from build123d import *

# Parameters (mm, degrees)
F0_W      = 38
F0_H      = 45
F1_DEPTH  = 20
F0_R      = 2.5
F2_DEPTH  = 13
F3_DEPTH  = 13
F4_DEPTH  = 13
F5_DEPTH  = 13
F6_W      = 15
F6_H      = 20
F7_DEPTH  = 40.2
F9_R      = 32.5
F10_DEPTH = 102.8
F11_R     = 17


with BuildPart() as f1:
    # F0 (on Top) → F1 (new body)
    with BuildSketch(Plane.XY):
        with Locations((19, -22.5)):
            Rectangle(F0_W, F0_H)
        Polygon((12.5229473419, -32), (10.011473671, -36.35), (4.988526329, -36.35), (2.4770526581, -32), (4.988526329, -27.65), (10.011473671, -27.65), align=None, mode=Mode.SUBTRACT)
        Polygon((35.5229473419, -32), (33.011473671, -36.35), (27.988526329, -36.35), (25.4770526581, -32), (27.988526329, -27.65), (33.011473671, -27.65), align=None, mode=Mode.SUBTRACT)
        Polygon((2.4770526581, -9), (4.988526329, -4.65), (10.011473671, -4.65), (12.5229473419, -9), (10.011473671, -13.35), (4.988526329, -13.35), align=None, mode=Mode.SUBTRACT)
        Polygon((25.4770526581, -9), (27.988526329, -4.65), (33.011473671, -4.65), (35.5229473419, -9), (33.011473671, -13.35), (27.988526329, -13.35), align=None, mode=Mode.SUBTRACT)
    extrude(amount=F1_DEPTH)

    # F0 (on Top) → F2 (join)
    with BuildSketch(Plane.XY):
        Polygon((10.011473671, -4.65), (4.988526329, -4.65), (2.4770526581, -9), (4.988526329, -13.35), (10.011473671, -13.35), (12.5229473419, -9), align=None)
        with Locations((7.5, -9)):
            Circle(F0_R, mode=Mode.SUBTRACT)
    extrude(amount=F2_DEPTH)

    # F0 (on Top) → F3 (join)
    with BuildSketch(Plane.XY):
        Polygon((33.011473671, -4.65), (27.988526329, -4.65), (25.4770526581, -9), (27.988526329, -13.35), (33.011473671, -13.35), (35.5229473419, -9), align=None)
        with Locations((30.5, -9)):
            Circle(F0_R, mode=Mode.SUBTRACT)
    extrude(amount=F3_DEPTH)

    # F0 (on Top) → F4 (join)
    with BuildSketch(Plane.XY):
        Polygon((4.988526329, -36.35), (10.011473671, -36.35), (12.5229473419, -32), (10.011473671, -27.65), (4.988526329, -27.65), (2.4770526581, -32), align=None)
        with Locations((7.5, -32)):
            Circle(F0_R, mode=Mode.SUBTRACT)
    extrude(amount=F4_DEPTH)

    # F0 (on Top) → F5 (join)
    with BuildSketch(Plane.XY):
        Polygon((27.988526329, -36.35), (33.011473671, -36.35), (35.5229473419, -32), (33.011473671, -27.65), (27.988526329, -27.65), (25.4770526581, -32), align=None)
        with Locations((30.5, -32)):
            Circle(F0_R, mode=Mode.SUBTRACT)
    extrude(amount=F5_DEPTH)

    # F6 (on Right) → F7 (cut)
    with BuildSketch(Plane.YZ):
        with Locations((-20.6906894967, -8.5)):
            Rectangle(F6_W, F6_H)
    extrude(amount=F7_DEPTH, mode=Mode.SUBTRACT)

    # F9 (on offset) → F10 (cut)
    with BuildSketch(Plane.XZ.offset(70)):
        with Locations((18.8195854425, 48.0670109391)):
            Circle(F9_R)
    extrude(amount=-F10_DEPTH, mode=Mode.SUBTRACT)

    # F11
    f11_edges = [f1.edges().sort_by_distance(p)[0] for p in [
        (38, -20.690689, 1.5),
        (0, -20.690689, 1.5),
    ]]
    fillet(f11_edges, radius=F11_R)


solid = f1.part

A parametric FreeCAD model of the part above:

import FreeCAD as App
import Part
import Sketcher
Q = App.Units.Quantity


def edges_at(feature, points):
    """Names of the edges that pass closest to the given points."""
    edges = feature.Shape.Edges
    near = lambda p: min(range(len(edges)), key=lambda i: edges[i].distToShape(Part.Vertex(*p))[0])
    return sorted({f"Edge{near(p) + 1}" for p in points})


def add_polygon(sketch, points):
    """Adds a closed chain of lines whose ends are joined by coincident constraints."""
    first, n = sketch.GeometryCount, len(points)
    for a, b in zip(points, points[1:] + points[:1]):
        sketch.addGeometry(Part.LineSegment(App.Vector(*a, 0), App.Vector(*b, 0)), False)
    for i in range(n):
        sketch.addConstraint(Sketcher.Constraint("Coincident", first + i, 2, first + (i + 1) % n, 1))

doc = App.newDocument("Part")
body = doc.addObject("PartDesign::Body", "Body")

# Sketch on XY plane
sketch1 = body.newObject("Sketcher::SketchObject", "Sketch")
sketch1.AttachmentSupport = (doc.getObject("XY_Plane"), [""])
sketch1.MapMode = "FlatFace"
add_polygon(sketch1, [(0, 0), (0, -45), (38, -45), (38, 0)])  # lines 0-3
add_polygon(sketch1, [(10, -28), (13, -32), (10, -36), (5, -36), (2, -32), (5, -28)])  # lines 4-9
add_polygon(sketch1, [(33, -28), (36, -32), (33, -36), (28, -36), (25, -32), (28, -28)])  # lines 10-15
add_polygon(sketch1, [(5, -13), (2, -9), (5, -5), (10, -5), (13, -9), (10, -13)])  # lines 16-21
add_polygon(sketch1, [(28, -13), (25, -9), (28, -5), (33, -5), (36, -9), (33, -13)])  # lines 22-27
sketch1.addConstraint(Sketcher.Constraint("Vertical", 0))
sketch1.addConstraint(Sketcher.Constraint("Horizontal", 1))
sketch1.addConstraint(Sketcher.Constraint("Vertical", 2))
sketch1.addConstraint(Sketcher.Constraint("Horizontal", 3))
sketch1.addConstraint(Sketcher.Constraint("Horizontal", 6))
sketch1.addConstraint(Sketcher.Constraint("Horizontal", 9))
sketch1.addConstraint(Sketcher.Constraint("Horizontal", 12))
sketch1.addConstraint(Sketcher.Constraint("Horizontal", 15))
sketch1.addConstraint(Sketcher.Constraint("Horizontal", 18))
sketch1.addConstraint(Sketcher.Constraint("Horizontal", 21))
sketch1.addConstraint(Sketcher.Constraint("Horizontal", 24))
sketch1.addConstraint(Sketcher.Constraint("Horizontal", 27))
sketch1.addConstraint(Sketcher.Constraint("Coincident", 3, 2, -1, 1))
sketch1.addConstraint(Sketcher.Constraint("Parallel", 4, 7))
sketch1.addConstraint(Sketcher.Constraint("Parallel", 5, 8))
sketch1.addConstraint(Sketcher.Constraint("Parallel", 7, 10))
sketch1.addConstraint(Sketcher.Constraint("Parallel", 8, 11))
sketch1.addConstraint(Sketcher.Constraint("Parallel", 10, 13))
sketch1.addConstraint(Sketcher.Constraint("Parallel", 11, 14))
sketch1.addConstraint(Sketcher.Constraint("Parallel", 13, 16))
sketch1.addConstraint(Sketcher.Constraint("Parallel", 14, 17))
sketch1.addConstraint(Sketcher.Constraint("Parallel", 16, 19))
sketch1.addConstraint(Sketcher.Constraint("Parallel", 17, 20))
sketch1.addConstraint(Sketcher.Constraint("Parallel", 19, 22))
sketch1.addConstraint(Sketcher.Constraint("Parallel", 20, 23))
sketch1.addConstraint(Sketcher.Constraint("Parallel", 22, 25))
sketch1.addConstraint(Sketcher.Constraint("Parallel", 23, 26))
sketch1.addConstraint(Sketcher.Constraint("Horizontal", 4, 2, 7, 2))
sketch1.addConstraint(Sketcher.Constraint("Horizontal", 7, 2, 10, 2))
sketch1.addConstraint(Sketcher.Constraint("Horizontal", 6, 2, 11, 2))
sketch1.addConstraint(Sketcher.Constraint("Horizontal", 10, 2, 13, 2))
sketch1.addConstraint(Sketcher.Constraint("Horizontal", 9, 2, 14, 2))
sketch1.addConstraint(Sketcher.Constraint("Horizontal", 16, 2, 19, 2))
sketch1.addConstraint(Sketcher.Constraint("Horizontal", 19, 2, 22, 2))
sketch1.addConstraint(Sketcher.Constraint("Horizontal", 18, 2, 23, 2))
sketch1.addConstraint(Sketcher.Constraint("Horizontal", 22, 2, 25, 2))
sketch1.addConstraint(Sketcher.Constraint("Horizontal", 21, 2, 26, 2))
sketch1.addConstraint(Sketcher.Constraint("Vertical", 6, 2, 8, 2))
sketch1.addConstraint(Sketcher.Constraint("Vertical", 5, 2, 9, 2))
sketch1.addConstraint(Sketcher.Constraint("Vertical", 7, 2, 16, 2))
sketch1.addConstraint(Sketcher.Constraint("Vertical", 8, 2, 17, 2))
sketch1.addConstraint(Sketcher.Constraint("Vertical", 9, 2, 18, 2))
sketch1.addConstraint(Sketcher.Constraint("Vertical", 18, 2, 20, 2))
sketch1.addConstraint(Sketcher.Constraint("Vertical", 13, 2, 22, 2))
sketch1.addConstraint(Sketcher.Constraint("Vertical", 15, 2, 24, 2))
sketch1.addConstraint(Sketcher.Constraint("Equal", 9, 12))
sketch1.addConstraint(Sketcher.Constraint("DistanceX", 1, 1, 1, 2, 38.0))
sketch1.addConstraint(Sketcher.Constraint("DistanceY", 0, 2, 0, 1, 45.0))
sketch1.addConstraint(Sketcher.Constraint("Angle", 4, Q("-60 deg")))
sketch1.addConstraint(Sketcher.Constraint("DistanceY", 4, 2, -1, 1, 32.0))
sketch1.addConstraint(Sketcher.Constraint("DistanceY", 16, 2, -1, 1, 9.0))
sketch1.addConstraint(Sketcher.Constraint("DistanceX", 4, 2, 10, 2, 23.0))
sketch1.addConstraint(Sketcher.Constraint("DistanceY", 6, 2, 8, 2, 8.7))
sketch1.addConstraint(Sketcher.Constraint("DistanceX", 6, 2, 6, 1, 5.022947))
sketch1.addConstraint(Sketcher.Constraint("DistanceX", -1, 1, 4, 2, 12.522947))
pad1 = body.newObject("PartDesign::Pad", "Pad")
pad1.Profile = sketch1
pad1.Length = 20

# Sketch on XY plane
sketch2 = body.newObject("Sketcher::SketchObject", "Sketch001")
sketch2.AttachmentSupport = (doc.getObject("XY_Plane"), [""])
sketch2.MapMode = "FlatFace"
add_polygon(sketch2, [(10, -4.7), (5, -4.7), (2.5, -9), (5, -13.3), (10, -13.3), (12.5, -9)])  # lines 0-5
sketch2.addGeometry(Part.Circle(App.Vector(7.5, -9, 0), App.Vector(0, 0, 1), 2.5), False)  # 6
sketch2.addConstraint(Sketcher.Constraint("Horizontal", 0))
sketch2.addConstraint(Sketcher.Constraint("Horizontal", 3))
sketch2.addConstraint(Sketcher.Constraint("Parallel", 1, 4))
sketch2.addConstraint(Sketcher.Constraint("Parallel", 2, 5))
sketch2.addConstraint(Sketcher.Constraint("Horizontal", 6, 3, 1, 2))
sketch2.addConstraint(Sketcher.Constraint("Horizontal", 1, 2, 4, 2))
sketch2.addConstraint(Sketcher.Constraint("Vertical", 0, 2, 2, 2))
sketch2.addConstraint(Sketcher.Constraint("Vertical", 3, 2, 5, 2))
sketch2.addConstraint(Sketcher.Constraint("Diameter", 6, 5.0))
sketch2.addConstraint(Sketcher.Constraint("Angle", 1, Q("-120 deg")))
sketch2.addConstraint(Sketcher.Constraint("DistanceY", 6, 3, -1, 1, 9.0))
sketch2.addConstraint(Sketcher.Constraint("DistanceX", -1, 1, 6, 3, 7.5))
sketch2.addConstraint(Sketcher.Constraint("DistanceY", 2, 2, 0, 2, 8.7))
sketch2.addConstraint(Sketcher.Constraint("DistanceX", 0, 2, 0, 1, 5.022947))
sketch2.addConstraint(Sketcher.Constraint("DistanceX", -1, 1, 0, 2, 4.988526))
pad2 = body.newObject("PartDesign::Pad", "Pad001")
pad2.Profile = sketch2
pad2.Length = 13

# Sketch on XY plane
sketch3 = body.newObject("Sketcher::SketchObject", "Sketch002")
sketch3.AttachmentSupport = (doc.getObject("XY_Plane"), [""])
sketch3.MapMode = "FlatFace"
add_polygon(sketch3, [(33, -4.7), (28, -4.7), (25.5, -9), (28, -13.3), (33, -13.3), (35.5, -9)])  # lines 0-5
sketch3.addGeometry(Part.Circle(App.Vector(30.5, -9, 0), App.Vector(0, 0, 1), 2.5), False)  # 6
sketch3.addConstraint(Sketcher.Constraint("Horizontal", 0))
sketch3.addConstraint(Sketcher.Constraint("Horizontal", 3))
sketch3.addConstraint(Sketcher.Constraint("Parallel", 1, 4))
sketch3.addConstraint(Sketcher.Constraint("Parallel", 2, 5))
sketch3.addConstraint(Sketcher.Constraint("Horizontal", 6, 3, 1, 2))
sketch3.addConstraint(Sketcher.Constraint("Horizontal", 1, 2, 4, 2))
sketch3.addConstraint(Sketcher.Constraint("Vertical", 0, 2, 2, 2))
sketch3.addConstraint(Sketcher.Constraint("Vertical", 3, 2, 5, 2))
sketch3.addConstraint(Sketcher.Constraint("Diameter", 6, 5.0))
sketch3.addConstraint(Sketcher.Constraint("Angle", 1, Q("-120 deg")))
sketch3.addConstraint(Sketcher.Constraint("DistanceY", 6, 3, -1, 1, 9.0))
sketch3.addConstraint(Sketcher.Constraint("DistanceX", -1, 1, 6, 3, 30.5))
sketch3.addConstraint(Sketcher.Constraint("DistanceY", 2, 2, 0, 2, 8.7))
sketch3.addConstraint(Sketcher.Constraint("DistanceX", 0, 2, 0, 1, 5.022947))
sketch3.addConstraint(Sketcher.Constraint("DistanceX", -1, 1, 0, 2, 27.988526))
pad3 = body.newObject("PartDesign::Pad", "Pad002")
pad3.Profile = sketch3
pad3.Length = 13

# Sketch on XY plane
sketch4 = body.newObject("Sketcher::SketchObject", "Sketch003")
sketch4.AttachmentSupport = (doc.getObject("XY_Plane"), [""])
sketch4.MapMode = "FlatFace"
add_polygon(sketch4, [(5, -36.4), (10, -36.4), (12.5, -32), (10, -27.6), (5, -27.6), (2.5, -32)])  # lines 0-5
sketch4.addGeometry(Part.Circle(App.Vector(7.5, -32, 0), App.Vector(0, 0, 1), 2.5), False)  # 6
sketch4.addConstraint(Sketcher.Constraint("Horizontal", 0))
sketch4.addConstraint(Sketcher.Constraint("Horizontal", 3))
sketch4.addConstraint(Sketcher.Constraint("Parallel", 1, 4))
sketch4.addConstraint(Sketcher.Constraint("Parallel", 2, 5))
sketch4.addConstraint(Sketcher.Constraint("Horizontal", 6, 3, 1, 2))
sketch4.addConstraint(Sketcher.Constraint("Horizontal", 1, 2, 4, 2))
sketch4.addConstraint(Sketcher.Constraint("Vertical", 0, 2, 2, 2))
sketch4.addConstraint(Sketcher.Constraint("Vertical", 3, 2, 5, 2))
sketch4.addConstraint(Sketcher.Constraint("Diameter", 6, 5.0))
sketch4.addConstraint(Sketcher.Constraint("Angle", 1, Q("60 deg")))
sketch4.addConstraint(Sketcher.Constraint("DistanceY", 6, 3, -1, 1, 32.0))
sketch4.addConstraint(Sketcher.Constraint("DistanceX", -1, 1, 6, 3, 7.5))
sketch4.addConstraint(Sketcher.Constraint("DistanceY", 0, 2, 2, 2, 8.7))
sketch4.addConstraint(Sketcher.Constraint("DistanceX", 0, 1, 0, 2, 5.022947))
sketch4.addConstraint(Sketcher.Constraint("DistanceX", -1, 1, 0, 2, 10.011474))
pad4 = body.newObject("PartDesign::Pad", "Pad003")
pad4.Profile = sketch4
pad4.Length = 13

# Sketch on XY plane
sketch5 = body.newObject("Sketcher::SketchObject", "Sketch004")
sketch5.AttachmentSupport = (doc.getObject("XY_Plane"), [""])
sketch5.MapMode = "FlatFace"
add_polygon(sketch5, [(28, -36.4), (33, -36.4), (35.5, -32), (33, -27.6), (28, -27.6), (25.5, -32)])  # lines 0-5
sketch5.addGeometry(Part.Circle(App.Vector(30.5, -32, 0), App.Vector(0, 0, 1), 2.5), False)  # 6
sketch5.addConstraint(Sketcher.Constraint("Horizontal", 0))
sketch5.addConstraint(Sketcher.Constraint("Horizontal", 3))
sketch5.addConstraint(Sketcher.Constraint("Parallel", 1, 4))
sketch5.addConstraint(Sketcher.Constraint("Parallel", 2, 5))
sketch5.addConstraint(Sketcher.Constraint("Horizontal", 6, 3, 1, 2))
sketch5.addConstraint(Sketcher.Constraint("Horizontal", 1, 2, 4, 2))
sketch5.addConstraint(Sketcher.Constraint("Vertical", 0, 2, 2, 2))
sketch5.addConstraint(Sketcher.Constraint("Vertical", 3, 2, 5, 2))
sketch5.addConstraint(Sketcher.Constraint("Diameter", 6, 5.0))
sketch5.addConstraint(Sketcher.Constraint("Angle", 1, Q("60 deg")))
sketch5.addConstraint(Sketcher.Constraint("DistanceY", 6, 3, -1, 1, 32.0))
sketch5.addConstraint(Sketcher.Constraint("DistanceX", -1, 1, 6, 3, 30.5))
sketch5.addConstraint(Sketcher.Constraint("DistanceY", 0, 2, 2, 2, 8.7))
sketch5.addConstraint(Sketcher.Constraint("DistanceX", 0, 1, 0, 2, 5.022947))
sketch5.addConstraint(Sketcher.Constraint("DistanceX", -1, 1, 0, 2, 33.011474))
pad5 = body.newObject("PartDesign::Pad", "Pad004")
pad5.Profile = sketch5
pad5.Length = 13

# Sketch on YZ plane
sketch6 = body.newObject("Sketcher::SketchObject", "Sketch005")
sketch6.AttachmentSupport = (doc.getObject("YZ_Plane"), [""])
sketch6.MapMode = "FlatFace"
add_polygon(sketch6, [(-28, 2), (-28, -18), (-13, -18), (-13, 2)])  # lines 0-3
sketch6.addConstraint(Sketcher.Constraint("Vertical", 0))
sketch6.addConstraint(Sketcher.Constraint("Horizontal", 1))
sketch6.addConstraint(Sketcher.Constraint("Vertical", 2))
sketch6.addConstraint(Sketcher.Constraint("Horizontal", 3))
sketch6.addConstraint(Sketcher.Constraint("DistanceX", 1, 1, 1, 2, 15.0))
sketch6.addConstraint(Sketcher.Constraint("DistanceY", 0, 2, 0, 1, 20.0))
sketch6.addConstraint(Sketcher.Constraint("DistanceY", 0, 2, -1, 1, 18.5))
sketch6.addConstraint(Sketcher.Constraint("DistanceX", 0, 2, -1, 1, 28.190689))
pocket1 = body.newObject("PartDesign::Pocket", "Pocket")
pocket1.Profile = sketch6
pocket1.Length = 40.2
pocket1.Reversed = True

# Sketch on XZ plane
sketch7 = body.newObject("Sketcher::SketchObject", "Sketch006")
sketch7.AttachmentSupport = (doc.getObject("XZ_Plane"), [""])
sketch7.MapMode = "FlatFace"
sketch7.AttachmentOffset = App.Placement(App.Vector(0, 0, 70), App.Rotation())
sketch7.addGeometry(Part.Circle(App.Vector(19, 48, 0), App.Vector(0, 0, 1), 32), False)
sketch7.addConstraint(Sketcher.Constraint("Diameter", 0, 65.0))
sketch7.addConstraint(Sketcher.Constraint("DistanceY", -1, 1, 0, 3, 48.067011))
sketch7.addConstraint(Sketcher.Constraint("DistanceX", -1, 1, 0, 3, 18.819585))
pocket2 = body.newObject("PartDesign::Pocket", "Pocket001")
pocket2.Profile = sketch7
pocket2.Length = 102.8
doc.recompute()

fillet = body.newObject("PartDesign::Fillet", "Fillet")
fillet.Base = (pocket2, edges_at(pocket2, [(38, -20.691, 1.5), (0, -20.691, 1.5)]))
fillet.Radius = 17

doc.recompute()
